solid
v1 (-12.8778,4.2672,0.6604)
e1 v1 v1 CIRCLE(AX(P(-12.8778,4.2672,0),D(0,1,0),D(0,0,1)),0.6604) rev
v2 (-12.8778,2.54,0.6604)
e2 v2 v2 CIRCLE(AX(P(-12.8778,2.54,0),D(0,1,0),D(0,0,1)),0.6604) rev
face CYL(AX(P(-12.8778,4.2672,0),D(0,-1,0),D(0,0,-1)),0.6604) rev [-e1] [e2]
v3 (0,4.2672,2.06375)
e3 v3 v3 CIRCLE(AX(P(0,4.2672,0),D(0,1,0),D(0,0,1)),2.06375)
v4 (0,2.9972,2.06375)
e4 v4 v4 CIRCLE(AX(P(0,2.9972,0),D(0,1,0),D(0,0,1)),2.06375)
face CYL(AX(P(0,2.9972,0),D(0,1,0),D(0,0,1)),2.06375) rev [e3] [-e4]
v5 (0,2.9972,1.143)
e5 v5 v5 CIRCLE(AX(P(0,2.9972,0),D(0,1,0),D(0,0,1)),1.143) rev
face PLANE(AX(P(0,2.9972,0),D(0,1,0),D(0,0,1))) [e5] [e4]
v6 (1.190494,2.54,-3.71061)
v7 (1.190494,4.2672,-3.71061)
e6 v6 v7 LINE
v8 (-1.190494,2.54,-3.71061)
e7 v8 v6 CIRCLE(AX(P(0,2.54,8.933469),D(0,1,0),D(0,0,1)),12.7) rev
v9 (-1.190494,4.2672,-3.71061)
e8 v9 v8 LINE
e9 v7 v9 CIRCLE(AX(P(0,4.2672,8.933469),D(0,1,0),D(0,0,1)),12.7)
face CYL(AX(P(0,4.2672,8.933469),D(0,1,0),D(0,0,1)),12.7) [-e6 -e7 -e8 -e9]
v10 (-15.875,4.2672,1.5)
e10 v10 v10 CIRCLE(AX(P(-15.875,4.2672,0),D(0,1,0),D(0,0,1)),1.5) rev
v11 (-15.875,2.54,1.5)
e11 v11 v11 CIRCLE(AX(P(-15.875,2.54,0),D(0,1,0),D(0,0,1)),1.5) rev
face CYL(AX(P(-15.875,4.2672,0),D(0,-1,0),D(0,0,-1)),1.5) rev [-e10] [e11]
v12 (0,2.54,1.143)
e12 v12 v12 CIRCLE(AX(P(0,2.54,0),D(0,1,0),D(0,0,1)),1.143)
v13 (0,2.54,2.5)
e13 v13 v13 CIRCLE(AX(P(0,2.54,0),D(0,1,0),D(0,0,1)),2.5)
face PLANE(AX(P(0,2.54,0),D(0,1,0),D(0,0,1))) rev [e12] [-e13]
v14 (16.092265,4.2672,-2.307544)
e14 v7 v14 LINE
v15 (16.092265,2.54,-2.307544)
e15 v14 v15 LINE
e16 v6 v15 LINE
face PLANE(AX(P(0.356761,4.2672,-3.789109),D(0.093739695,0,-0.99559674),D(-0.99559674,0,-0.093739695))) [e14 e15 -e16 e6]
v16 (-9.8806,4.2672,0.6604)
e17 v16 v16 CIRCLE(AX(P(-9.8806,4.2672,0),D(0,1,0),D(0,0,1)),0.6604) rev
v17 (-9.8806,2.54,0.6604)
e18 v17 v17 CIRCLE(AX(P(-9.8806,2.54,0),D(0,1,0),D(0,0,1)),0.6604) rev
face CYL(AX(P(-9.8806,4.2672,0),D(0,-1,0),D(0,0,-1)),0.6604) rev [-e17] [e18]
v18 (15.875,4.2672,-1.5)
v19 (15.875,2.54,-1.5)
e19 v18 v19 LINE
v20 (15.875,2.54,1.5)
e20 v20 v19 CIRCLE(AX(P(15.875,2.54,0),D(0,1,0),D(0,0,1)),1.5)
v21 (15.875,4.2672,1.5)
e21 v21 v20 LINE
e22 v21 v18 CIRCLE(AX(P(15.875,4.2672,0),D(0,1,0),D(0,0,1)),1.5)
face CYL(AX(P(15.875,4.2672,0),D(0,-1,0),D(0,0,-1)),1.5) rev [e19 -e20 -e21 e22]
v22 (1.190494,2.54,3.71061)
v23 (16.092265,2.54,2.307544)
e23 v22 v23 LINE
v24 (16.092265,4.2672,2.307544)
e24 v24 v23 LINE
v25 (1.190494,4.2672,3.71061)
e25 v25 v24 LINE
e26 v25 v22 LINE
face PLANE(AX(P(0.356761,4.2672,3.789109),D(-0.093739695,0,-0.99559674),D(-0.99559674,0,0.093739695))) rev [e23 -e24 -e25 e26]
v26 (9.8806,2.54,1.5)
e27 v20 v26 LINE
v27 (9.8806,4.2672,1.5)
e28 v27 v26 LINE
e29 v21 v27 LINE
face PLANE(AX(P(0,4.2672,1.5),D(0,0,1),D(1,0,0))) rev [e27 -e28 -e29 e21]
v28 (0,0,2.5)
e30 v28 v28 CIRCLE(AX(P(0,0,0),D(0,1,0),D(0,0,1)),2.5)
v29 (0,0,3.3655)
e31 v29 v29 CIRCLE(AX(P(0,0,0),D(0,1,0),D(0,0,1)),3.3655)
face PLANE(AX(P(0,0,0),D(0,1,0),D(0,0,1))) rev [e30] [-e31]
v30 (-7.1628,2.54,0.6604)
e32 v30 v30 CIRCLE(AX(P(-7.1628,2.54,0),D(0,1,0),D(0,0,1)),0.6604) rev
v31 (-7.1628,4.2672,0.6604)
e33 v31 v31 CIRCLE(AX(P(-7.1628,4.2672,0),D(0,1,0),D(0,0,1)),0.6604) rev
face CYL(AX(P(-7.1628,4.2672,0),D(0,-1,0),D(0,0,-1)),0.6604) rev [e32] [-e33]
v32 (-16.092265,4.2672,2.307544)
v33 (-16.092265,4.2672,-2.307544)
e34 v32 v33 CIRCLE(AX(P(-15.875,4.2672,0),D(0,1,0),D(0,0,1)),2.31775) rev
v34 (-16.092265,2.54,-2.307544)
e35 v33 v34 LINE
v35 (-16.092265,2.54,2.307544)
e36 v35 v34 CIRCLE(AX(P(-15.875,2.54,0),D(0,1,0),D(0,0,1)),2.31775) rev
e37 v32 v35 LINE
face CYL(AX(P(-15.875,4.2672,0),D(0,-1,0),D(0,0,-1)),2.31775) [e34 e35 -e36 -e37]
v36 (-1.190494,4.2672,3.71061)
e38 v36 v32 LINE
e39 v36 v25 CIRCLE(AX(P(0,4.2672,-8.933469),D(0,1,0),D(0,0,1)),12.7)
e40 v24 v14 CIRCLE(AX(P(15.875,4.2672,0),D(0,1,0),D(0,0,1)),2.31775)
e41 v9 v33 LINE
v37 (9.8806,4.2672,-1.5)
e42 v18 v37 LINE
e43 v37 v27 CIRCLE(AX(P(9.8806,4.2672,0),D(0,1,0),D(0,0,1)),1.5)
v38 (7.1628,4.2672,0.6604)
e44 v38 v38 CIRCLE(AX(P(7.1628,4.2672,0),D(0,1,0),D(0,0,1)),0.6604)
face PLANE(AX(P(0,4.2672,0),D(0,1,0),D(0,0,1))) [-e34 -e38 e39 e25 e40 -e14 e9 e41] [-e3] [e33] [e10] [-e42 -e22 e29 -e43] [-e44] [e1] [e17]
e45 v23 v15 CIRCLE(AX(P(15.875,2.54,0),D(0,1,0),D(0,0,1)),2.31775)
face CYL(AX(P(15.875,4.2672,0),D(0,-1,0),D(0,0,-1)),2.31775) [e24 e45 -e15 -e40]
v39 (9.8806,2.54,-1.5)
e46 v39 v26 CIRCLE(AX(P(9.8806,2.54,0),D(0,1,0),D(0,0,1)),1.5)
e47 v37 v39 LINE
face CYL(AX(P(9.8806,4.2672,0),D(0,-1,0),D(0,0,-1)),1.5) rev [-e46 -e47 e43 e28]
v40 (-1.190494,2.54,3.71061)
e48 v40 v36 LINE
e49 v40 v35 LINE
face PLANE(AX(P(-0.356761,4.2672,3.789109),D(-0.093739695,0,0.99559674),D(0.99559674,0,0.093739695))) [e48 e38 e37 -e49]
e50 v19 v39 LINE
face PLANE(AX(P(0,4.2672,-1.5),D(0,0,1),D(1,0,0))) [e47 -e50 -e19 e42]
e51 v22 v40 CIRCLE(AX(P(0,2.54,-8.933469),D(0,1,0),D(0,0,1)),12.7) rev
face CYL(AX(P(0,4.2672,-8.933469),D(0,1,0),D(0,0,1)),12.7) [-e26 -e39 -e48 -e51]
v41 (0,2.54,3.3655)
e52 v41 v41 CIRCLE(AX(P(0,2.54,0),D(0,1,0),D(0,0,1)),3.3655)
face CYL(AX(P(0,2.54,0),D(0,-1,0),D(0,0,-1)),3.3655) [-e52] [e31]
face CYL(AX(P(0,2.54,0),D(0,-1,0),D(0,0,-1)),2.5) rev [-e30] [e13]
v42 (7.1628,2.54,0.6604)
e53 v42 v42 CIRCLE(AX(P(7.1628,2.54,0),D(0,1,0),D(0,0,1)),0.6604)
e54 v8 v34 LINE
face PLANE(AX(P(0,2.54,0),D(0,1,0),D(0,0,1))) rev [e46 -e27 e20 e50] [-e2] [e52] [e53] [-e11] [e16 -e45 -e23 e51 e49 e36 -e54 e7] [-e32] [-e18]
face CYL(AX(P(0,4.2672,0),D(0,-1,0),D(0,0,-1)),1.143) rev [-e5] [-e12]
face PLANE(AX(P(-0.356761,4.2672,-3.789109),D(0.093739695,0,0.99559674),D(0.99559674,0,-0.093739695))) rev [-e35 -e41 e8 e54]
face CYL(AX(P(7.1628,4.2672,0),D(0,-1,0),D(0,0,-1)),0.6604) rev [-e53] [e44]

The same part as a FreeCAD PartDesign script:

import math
import FreeCAD as App
import Part
import Sketcher
Q = App.Units.Quantity


def edges_at(feature, points):
    """Names of the edges that pass closest to the given points."""
    edges = feature.Shape.Edges
    near = lambda p: min(range(len(edges)), key=lambda i: edges[i].distToShape(Part.Vertex(*p))[0])
    return sorted({f"Edge{near(p) + 1}" for p in points})

doc = App.newDocument("Part")
body = doc.addObject("PartDesign::Body", "Body")

sketch1 = body.newObject("Sketcher::SketchObject", "Sketch")
sketch1.AttachmentSupport = (doc.getObject("XZ_Plane"), [""])
sketch1.MapMode = "FlatFace"
sketch1.addGeometry([
    Part.Circle(App.Vector(0, 0, 0), App.Vector(0, 0, 1), 3.4),
    Part.Circle(App.Vector(0, 0, 0), App.Vector(0, 0, 1), 2.5),
], False)
sketch1.addConstraint([
    Sketcher.Constraint("Coincident", 0, 3, -1, 1),
    Sketcher.Constraint("Coincident", 1, 3, -1, 1),
    Sketcher.Constraint("Diameter", 0, Q("0.265 in")),
    Sketcher.Constraint("Diameter", 1, 5.0),
])
pad1 = body.newObject("PartDesign::Pad", "Pad")
pad1.Profile = sketch1
pad1.Length = Q("0.1 in")
pad1.Reversed = True

sketch2 = body.newObject("Sketcher::SketchObject", "Sketch001")
sketch2.AttachmentSupport = (doc.getObject("XZ_Plane"), [""])
sketch2.MapMode = "FlatFace"
sketch2.AttachmentOffset = App.Placement(App.Vector(0, 0, -0.1 * 25.4), App.Rotation())
sketch2.addGeometry([
    Part.LineSegment(App.Vector(0, -3.8, 0), App.Vector(-16.1, -2.3, 0)),
    Part.ArcOfCircle(Part.Circle(App.Vector(-15.9, 0, 0), App.Vector(0, 0, 1), 2.3), math.radians(95), math.radians(265)),
    Part.LineSegment(App.Vector(-16.1, 2.3, 0), App.Vector(0, 3.8, 0)),
    Part.LineSegment(App.Vector(0, 3.8, 0), App.Vector(16.1, 2.3, 0)),
    Part.ArcOfCircle(Part.Circle(App.Vector(15.9, 0, 0), App.Vector(0, 0, 1), 2.3), math.radians(-85), math.radians(85)),
    Part.LineSegment(App.Vector(16.1, -2.3, 0), App.Vector(0, -3.8, 0)),
    Part.Circle(App.Vector(-15.9, 0, 0), App.Vector(0, 0, 1), 1.5),
    Part.Circle(App.Vector(-12.9, 0, 0), App.Vector(0, 0, 1), 0.7),
    Part.Circle(App.Vector(-9.9, 0, 0), App.Vector(0, 0, 1), 0.7),
    Part.Circle(App.Vector(-7.2, 0, 0), App.Vector(0, 0, 1), 0.7),
    Part.Circle(App.Vector(0, 0, 0), App.Vector(0, 0, 1), 1.1),
    Part.Circle(App.Vector(7.2, 0, 0), App.Vector(0, 0, 1), 0.7),
    Part.LineSegment(App.Vector(15.9, 1.5, 0), App.Vector(9.9, 1.5, 0)),
    Part.ArcOfCircle(Part.Circle(App.Vector(9.9, 0, 0), App.Vector(0, 0, 1), 1.5), math.radians(90), math.radians(270)),
    Part.LineSegment(App.Vector(9.9, -1.5, 0), App.Vector(15.9, -1.5, 0)),
    Part.ArcOfCircle(Part.Circle(App.Vector(15.9, 0, 0), App.Vector(0, 0, 1), 1.5), math.radians(-90), math.radians(90)),
], False)
sketch2.addConstraint([
    Sketcher.Constraint("Tangent", 0, 2, 1, 2),
    Sketcher.Constraint("Tangent", 1, 1, 2, 1),
    Sketcher.Constraint("Coincident", 2, 2, 3, 1),
    Sketcher.Constraint("Tangent", 3, 2, 4, 2),
    Sketcher.Constraint("Tangent", 4, 1, 5, 1),
    Sketcher.Constraint("Coincident", 5, 2, 0, 1),
    Sketcher.Constraint("Tangent", 12, 2, 13, 1),
    Sketcher.Constraint("Tangent", 13, 2, 14, 1),
    Sketcher.Constraint("Tangent", 14, 2, 15, 1),
    Sketcher.Constraint("Tangent", 15, 2, 12, 1),
    Sketcher.Constraint("Horizontal", 12),
    Sketcher.Constraint("Horizontal", 14),
    Sketcher.Constraint("Coincident", 10, 3, -1, 1),
    Sketcher.Constraint("Coincident", 6, 3, 1, 3),
    Sketcher.Constraint("Coincident", 15, 3, 4, 3),
    Sketcher.Constraint("Equal", 1, 4),
    Sketcher.Constraint("Equal", 7, 8),
    Sketcher.Constraint("Equal", 8, 9),
    Sketcher.Constraint("Equal", 9, 11),
    Sketcher.Constraint("Equal", 6, 13),
    Sketcher.Constraint("Symmetric", 1, 3, 4, 3, -1, 1),
    Sketcher.Constraint("Symmetric", 9, 3, 11, 3, -1, 1),
    Sketcher.Constraint("Symmetric", 8, 3, 13, 3, -1, 1),
    Sketcher.Constraint("Symmetric", 2, 2, 5, 2, -1, 1),
    Sketcher.Constraint("Symmetric", 1, 1, 3, 2, -2),
    Sketcher.Constraint("PointOnObject", 7, 3, -1),
    Sketcher.Constraint("PointOnObject", 9, 3, -1),
    Sketcher.Constraint("Diameter", 10, Q("0.09 in")),
    Sketcher.Constraint("Diameter", 7, Q("0.052 in")),
    Sketcher.Constraint("Diameter", 6, 3.0),
    Sketcher.Constraint("DistanceX", 12, 2, 12, 1, Q("0.236 in")),
    Sketcher.Constraint("DistanceX", 1, 3, 4, 3, Q("1.25 in")),
    Sketcher.Constraint("DistanceX", 7, 3, -1, 1, Q("0.507 in")),
    Sketcher.Constraint("DistanceX", 9, 3, -1, 1, Q("0.282 in")),
    Sketcher.Constraint("Radius", 1, 2.31775),
    Sketcher.Constraint("DistanceY", 5, 2, 2, 2, Q("0.301 in")),
])
pad2 = body.newObject("PartDesign::Pad", "Pad001")
pad2.Profile = sketch2
pad2.Length = Q("0.068 in")
pad2.Reversed = True
doc.recompute()

fillet = body.newObject("PartDesign::Fillet", "Fillet")
fillet.Base = (pad2, edges_at(pad2, [(0, 3.404, 3.823), (0, 3.404, -3.823)]))
fillet.Radius = Q("0.5 in")

sketch3 = body.newObject("Sketcher::SketchObject", "Sketch002")
sketch3.AttachmentSupport = (doc.getObject("XZ_Plane"), [""])
sketch3.MapMode = "FlatFace"
sketch3.AttachmentOffset = App.Placement(App.Vector(0, 0, -0.118 * 25.4), App.Rotation())
sketch3.addGeometry([
    Part.Circle(App.Vector(0, 0, 0), App.Vector(0, 0, 1), 2.1),
    Part.Circle(App.Vector(0, 0, 0), App.Vector(0, 0, 1), 1.1),
], False)
sketch3.addConstraint([
    Sketcher.Constraint("Coincident", 0, 3, -1, 1),
    Sketcher.Constraint("Coincident", 1, 3, -1, 1),
    Sketcher.Constraint("Diameter", 1, Q("0.09 in")),
    Sketcher.Constraint("Diameter", 0, Q("0.1625 in")),
])
pocket1 = body.newObject("PartDesign::Pocket", "Pocket")
pocket1.Profile = sketch3
pocket1.Length = Q("0.05 in")

doc.recompute()
